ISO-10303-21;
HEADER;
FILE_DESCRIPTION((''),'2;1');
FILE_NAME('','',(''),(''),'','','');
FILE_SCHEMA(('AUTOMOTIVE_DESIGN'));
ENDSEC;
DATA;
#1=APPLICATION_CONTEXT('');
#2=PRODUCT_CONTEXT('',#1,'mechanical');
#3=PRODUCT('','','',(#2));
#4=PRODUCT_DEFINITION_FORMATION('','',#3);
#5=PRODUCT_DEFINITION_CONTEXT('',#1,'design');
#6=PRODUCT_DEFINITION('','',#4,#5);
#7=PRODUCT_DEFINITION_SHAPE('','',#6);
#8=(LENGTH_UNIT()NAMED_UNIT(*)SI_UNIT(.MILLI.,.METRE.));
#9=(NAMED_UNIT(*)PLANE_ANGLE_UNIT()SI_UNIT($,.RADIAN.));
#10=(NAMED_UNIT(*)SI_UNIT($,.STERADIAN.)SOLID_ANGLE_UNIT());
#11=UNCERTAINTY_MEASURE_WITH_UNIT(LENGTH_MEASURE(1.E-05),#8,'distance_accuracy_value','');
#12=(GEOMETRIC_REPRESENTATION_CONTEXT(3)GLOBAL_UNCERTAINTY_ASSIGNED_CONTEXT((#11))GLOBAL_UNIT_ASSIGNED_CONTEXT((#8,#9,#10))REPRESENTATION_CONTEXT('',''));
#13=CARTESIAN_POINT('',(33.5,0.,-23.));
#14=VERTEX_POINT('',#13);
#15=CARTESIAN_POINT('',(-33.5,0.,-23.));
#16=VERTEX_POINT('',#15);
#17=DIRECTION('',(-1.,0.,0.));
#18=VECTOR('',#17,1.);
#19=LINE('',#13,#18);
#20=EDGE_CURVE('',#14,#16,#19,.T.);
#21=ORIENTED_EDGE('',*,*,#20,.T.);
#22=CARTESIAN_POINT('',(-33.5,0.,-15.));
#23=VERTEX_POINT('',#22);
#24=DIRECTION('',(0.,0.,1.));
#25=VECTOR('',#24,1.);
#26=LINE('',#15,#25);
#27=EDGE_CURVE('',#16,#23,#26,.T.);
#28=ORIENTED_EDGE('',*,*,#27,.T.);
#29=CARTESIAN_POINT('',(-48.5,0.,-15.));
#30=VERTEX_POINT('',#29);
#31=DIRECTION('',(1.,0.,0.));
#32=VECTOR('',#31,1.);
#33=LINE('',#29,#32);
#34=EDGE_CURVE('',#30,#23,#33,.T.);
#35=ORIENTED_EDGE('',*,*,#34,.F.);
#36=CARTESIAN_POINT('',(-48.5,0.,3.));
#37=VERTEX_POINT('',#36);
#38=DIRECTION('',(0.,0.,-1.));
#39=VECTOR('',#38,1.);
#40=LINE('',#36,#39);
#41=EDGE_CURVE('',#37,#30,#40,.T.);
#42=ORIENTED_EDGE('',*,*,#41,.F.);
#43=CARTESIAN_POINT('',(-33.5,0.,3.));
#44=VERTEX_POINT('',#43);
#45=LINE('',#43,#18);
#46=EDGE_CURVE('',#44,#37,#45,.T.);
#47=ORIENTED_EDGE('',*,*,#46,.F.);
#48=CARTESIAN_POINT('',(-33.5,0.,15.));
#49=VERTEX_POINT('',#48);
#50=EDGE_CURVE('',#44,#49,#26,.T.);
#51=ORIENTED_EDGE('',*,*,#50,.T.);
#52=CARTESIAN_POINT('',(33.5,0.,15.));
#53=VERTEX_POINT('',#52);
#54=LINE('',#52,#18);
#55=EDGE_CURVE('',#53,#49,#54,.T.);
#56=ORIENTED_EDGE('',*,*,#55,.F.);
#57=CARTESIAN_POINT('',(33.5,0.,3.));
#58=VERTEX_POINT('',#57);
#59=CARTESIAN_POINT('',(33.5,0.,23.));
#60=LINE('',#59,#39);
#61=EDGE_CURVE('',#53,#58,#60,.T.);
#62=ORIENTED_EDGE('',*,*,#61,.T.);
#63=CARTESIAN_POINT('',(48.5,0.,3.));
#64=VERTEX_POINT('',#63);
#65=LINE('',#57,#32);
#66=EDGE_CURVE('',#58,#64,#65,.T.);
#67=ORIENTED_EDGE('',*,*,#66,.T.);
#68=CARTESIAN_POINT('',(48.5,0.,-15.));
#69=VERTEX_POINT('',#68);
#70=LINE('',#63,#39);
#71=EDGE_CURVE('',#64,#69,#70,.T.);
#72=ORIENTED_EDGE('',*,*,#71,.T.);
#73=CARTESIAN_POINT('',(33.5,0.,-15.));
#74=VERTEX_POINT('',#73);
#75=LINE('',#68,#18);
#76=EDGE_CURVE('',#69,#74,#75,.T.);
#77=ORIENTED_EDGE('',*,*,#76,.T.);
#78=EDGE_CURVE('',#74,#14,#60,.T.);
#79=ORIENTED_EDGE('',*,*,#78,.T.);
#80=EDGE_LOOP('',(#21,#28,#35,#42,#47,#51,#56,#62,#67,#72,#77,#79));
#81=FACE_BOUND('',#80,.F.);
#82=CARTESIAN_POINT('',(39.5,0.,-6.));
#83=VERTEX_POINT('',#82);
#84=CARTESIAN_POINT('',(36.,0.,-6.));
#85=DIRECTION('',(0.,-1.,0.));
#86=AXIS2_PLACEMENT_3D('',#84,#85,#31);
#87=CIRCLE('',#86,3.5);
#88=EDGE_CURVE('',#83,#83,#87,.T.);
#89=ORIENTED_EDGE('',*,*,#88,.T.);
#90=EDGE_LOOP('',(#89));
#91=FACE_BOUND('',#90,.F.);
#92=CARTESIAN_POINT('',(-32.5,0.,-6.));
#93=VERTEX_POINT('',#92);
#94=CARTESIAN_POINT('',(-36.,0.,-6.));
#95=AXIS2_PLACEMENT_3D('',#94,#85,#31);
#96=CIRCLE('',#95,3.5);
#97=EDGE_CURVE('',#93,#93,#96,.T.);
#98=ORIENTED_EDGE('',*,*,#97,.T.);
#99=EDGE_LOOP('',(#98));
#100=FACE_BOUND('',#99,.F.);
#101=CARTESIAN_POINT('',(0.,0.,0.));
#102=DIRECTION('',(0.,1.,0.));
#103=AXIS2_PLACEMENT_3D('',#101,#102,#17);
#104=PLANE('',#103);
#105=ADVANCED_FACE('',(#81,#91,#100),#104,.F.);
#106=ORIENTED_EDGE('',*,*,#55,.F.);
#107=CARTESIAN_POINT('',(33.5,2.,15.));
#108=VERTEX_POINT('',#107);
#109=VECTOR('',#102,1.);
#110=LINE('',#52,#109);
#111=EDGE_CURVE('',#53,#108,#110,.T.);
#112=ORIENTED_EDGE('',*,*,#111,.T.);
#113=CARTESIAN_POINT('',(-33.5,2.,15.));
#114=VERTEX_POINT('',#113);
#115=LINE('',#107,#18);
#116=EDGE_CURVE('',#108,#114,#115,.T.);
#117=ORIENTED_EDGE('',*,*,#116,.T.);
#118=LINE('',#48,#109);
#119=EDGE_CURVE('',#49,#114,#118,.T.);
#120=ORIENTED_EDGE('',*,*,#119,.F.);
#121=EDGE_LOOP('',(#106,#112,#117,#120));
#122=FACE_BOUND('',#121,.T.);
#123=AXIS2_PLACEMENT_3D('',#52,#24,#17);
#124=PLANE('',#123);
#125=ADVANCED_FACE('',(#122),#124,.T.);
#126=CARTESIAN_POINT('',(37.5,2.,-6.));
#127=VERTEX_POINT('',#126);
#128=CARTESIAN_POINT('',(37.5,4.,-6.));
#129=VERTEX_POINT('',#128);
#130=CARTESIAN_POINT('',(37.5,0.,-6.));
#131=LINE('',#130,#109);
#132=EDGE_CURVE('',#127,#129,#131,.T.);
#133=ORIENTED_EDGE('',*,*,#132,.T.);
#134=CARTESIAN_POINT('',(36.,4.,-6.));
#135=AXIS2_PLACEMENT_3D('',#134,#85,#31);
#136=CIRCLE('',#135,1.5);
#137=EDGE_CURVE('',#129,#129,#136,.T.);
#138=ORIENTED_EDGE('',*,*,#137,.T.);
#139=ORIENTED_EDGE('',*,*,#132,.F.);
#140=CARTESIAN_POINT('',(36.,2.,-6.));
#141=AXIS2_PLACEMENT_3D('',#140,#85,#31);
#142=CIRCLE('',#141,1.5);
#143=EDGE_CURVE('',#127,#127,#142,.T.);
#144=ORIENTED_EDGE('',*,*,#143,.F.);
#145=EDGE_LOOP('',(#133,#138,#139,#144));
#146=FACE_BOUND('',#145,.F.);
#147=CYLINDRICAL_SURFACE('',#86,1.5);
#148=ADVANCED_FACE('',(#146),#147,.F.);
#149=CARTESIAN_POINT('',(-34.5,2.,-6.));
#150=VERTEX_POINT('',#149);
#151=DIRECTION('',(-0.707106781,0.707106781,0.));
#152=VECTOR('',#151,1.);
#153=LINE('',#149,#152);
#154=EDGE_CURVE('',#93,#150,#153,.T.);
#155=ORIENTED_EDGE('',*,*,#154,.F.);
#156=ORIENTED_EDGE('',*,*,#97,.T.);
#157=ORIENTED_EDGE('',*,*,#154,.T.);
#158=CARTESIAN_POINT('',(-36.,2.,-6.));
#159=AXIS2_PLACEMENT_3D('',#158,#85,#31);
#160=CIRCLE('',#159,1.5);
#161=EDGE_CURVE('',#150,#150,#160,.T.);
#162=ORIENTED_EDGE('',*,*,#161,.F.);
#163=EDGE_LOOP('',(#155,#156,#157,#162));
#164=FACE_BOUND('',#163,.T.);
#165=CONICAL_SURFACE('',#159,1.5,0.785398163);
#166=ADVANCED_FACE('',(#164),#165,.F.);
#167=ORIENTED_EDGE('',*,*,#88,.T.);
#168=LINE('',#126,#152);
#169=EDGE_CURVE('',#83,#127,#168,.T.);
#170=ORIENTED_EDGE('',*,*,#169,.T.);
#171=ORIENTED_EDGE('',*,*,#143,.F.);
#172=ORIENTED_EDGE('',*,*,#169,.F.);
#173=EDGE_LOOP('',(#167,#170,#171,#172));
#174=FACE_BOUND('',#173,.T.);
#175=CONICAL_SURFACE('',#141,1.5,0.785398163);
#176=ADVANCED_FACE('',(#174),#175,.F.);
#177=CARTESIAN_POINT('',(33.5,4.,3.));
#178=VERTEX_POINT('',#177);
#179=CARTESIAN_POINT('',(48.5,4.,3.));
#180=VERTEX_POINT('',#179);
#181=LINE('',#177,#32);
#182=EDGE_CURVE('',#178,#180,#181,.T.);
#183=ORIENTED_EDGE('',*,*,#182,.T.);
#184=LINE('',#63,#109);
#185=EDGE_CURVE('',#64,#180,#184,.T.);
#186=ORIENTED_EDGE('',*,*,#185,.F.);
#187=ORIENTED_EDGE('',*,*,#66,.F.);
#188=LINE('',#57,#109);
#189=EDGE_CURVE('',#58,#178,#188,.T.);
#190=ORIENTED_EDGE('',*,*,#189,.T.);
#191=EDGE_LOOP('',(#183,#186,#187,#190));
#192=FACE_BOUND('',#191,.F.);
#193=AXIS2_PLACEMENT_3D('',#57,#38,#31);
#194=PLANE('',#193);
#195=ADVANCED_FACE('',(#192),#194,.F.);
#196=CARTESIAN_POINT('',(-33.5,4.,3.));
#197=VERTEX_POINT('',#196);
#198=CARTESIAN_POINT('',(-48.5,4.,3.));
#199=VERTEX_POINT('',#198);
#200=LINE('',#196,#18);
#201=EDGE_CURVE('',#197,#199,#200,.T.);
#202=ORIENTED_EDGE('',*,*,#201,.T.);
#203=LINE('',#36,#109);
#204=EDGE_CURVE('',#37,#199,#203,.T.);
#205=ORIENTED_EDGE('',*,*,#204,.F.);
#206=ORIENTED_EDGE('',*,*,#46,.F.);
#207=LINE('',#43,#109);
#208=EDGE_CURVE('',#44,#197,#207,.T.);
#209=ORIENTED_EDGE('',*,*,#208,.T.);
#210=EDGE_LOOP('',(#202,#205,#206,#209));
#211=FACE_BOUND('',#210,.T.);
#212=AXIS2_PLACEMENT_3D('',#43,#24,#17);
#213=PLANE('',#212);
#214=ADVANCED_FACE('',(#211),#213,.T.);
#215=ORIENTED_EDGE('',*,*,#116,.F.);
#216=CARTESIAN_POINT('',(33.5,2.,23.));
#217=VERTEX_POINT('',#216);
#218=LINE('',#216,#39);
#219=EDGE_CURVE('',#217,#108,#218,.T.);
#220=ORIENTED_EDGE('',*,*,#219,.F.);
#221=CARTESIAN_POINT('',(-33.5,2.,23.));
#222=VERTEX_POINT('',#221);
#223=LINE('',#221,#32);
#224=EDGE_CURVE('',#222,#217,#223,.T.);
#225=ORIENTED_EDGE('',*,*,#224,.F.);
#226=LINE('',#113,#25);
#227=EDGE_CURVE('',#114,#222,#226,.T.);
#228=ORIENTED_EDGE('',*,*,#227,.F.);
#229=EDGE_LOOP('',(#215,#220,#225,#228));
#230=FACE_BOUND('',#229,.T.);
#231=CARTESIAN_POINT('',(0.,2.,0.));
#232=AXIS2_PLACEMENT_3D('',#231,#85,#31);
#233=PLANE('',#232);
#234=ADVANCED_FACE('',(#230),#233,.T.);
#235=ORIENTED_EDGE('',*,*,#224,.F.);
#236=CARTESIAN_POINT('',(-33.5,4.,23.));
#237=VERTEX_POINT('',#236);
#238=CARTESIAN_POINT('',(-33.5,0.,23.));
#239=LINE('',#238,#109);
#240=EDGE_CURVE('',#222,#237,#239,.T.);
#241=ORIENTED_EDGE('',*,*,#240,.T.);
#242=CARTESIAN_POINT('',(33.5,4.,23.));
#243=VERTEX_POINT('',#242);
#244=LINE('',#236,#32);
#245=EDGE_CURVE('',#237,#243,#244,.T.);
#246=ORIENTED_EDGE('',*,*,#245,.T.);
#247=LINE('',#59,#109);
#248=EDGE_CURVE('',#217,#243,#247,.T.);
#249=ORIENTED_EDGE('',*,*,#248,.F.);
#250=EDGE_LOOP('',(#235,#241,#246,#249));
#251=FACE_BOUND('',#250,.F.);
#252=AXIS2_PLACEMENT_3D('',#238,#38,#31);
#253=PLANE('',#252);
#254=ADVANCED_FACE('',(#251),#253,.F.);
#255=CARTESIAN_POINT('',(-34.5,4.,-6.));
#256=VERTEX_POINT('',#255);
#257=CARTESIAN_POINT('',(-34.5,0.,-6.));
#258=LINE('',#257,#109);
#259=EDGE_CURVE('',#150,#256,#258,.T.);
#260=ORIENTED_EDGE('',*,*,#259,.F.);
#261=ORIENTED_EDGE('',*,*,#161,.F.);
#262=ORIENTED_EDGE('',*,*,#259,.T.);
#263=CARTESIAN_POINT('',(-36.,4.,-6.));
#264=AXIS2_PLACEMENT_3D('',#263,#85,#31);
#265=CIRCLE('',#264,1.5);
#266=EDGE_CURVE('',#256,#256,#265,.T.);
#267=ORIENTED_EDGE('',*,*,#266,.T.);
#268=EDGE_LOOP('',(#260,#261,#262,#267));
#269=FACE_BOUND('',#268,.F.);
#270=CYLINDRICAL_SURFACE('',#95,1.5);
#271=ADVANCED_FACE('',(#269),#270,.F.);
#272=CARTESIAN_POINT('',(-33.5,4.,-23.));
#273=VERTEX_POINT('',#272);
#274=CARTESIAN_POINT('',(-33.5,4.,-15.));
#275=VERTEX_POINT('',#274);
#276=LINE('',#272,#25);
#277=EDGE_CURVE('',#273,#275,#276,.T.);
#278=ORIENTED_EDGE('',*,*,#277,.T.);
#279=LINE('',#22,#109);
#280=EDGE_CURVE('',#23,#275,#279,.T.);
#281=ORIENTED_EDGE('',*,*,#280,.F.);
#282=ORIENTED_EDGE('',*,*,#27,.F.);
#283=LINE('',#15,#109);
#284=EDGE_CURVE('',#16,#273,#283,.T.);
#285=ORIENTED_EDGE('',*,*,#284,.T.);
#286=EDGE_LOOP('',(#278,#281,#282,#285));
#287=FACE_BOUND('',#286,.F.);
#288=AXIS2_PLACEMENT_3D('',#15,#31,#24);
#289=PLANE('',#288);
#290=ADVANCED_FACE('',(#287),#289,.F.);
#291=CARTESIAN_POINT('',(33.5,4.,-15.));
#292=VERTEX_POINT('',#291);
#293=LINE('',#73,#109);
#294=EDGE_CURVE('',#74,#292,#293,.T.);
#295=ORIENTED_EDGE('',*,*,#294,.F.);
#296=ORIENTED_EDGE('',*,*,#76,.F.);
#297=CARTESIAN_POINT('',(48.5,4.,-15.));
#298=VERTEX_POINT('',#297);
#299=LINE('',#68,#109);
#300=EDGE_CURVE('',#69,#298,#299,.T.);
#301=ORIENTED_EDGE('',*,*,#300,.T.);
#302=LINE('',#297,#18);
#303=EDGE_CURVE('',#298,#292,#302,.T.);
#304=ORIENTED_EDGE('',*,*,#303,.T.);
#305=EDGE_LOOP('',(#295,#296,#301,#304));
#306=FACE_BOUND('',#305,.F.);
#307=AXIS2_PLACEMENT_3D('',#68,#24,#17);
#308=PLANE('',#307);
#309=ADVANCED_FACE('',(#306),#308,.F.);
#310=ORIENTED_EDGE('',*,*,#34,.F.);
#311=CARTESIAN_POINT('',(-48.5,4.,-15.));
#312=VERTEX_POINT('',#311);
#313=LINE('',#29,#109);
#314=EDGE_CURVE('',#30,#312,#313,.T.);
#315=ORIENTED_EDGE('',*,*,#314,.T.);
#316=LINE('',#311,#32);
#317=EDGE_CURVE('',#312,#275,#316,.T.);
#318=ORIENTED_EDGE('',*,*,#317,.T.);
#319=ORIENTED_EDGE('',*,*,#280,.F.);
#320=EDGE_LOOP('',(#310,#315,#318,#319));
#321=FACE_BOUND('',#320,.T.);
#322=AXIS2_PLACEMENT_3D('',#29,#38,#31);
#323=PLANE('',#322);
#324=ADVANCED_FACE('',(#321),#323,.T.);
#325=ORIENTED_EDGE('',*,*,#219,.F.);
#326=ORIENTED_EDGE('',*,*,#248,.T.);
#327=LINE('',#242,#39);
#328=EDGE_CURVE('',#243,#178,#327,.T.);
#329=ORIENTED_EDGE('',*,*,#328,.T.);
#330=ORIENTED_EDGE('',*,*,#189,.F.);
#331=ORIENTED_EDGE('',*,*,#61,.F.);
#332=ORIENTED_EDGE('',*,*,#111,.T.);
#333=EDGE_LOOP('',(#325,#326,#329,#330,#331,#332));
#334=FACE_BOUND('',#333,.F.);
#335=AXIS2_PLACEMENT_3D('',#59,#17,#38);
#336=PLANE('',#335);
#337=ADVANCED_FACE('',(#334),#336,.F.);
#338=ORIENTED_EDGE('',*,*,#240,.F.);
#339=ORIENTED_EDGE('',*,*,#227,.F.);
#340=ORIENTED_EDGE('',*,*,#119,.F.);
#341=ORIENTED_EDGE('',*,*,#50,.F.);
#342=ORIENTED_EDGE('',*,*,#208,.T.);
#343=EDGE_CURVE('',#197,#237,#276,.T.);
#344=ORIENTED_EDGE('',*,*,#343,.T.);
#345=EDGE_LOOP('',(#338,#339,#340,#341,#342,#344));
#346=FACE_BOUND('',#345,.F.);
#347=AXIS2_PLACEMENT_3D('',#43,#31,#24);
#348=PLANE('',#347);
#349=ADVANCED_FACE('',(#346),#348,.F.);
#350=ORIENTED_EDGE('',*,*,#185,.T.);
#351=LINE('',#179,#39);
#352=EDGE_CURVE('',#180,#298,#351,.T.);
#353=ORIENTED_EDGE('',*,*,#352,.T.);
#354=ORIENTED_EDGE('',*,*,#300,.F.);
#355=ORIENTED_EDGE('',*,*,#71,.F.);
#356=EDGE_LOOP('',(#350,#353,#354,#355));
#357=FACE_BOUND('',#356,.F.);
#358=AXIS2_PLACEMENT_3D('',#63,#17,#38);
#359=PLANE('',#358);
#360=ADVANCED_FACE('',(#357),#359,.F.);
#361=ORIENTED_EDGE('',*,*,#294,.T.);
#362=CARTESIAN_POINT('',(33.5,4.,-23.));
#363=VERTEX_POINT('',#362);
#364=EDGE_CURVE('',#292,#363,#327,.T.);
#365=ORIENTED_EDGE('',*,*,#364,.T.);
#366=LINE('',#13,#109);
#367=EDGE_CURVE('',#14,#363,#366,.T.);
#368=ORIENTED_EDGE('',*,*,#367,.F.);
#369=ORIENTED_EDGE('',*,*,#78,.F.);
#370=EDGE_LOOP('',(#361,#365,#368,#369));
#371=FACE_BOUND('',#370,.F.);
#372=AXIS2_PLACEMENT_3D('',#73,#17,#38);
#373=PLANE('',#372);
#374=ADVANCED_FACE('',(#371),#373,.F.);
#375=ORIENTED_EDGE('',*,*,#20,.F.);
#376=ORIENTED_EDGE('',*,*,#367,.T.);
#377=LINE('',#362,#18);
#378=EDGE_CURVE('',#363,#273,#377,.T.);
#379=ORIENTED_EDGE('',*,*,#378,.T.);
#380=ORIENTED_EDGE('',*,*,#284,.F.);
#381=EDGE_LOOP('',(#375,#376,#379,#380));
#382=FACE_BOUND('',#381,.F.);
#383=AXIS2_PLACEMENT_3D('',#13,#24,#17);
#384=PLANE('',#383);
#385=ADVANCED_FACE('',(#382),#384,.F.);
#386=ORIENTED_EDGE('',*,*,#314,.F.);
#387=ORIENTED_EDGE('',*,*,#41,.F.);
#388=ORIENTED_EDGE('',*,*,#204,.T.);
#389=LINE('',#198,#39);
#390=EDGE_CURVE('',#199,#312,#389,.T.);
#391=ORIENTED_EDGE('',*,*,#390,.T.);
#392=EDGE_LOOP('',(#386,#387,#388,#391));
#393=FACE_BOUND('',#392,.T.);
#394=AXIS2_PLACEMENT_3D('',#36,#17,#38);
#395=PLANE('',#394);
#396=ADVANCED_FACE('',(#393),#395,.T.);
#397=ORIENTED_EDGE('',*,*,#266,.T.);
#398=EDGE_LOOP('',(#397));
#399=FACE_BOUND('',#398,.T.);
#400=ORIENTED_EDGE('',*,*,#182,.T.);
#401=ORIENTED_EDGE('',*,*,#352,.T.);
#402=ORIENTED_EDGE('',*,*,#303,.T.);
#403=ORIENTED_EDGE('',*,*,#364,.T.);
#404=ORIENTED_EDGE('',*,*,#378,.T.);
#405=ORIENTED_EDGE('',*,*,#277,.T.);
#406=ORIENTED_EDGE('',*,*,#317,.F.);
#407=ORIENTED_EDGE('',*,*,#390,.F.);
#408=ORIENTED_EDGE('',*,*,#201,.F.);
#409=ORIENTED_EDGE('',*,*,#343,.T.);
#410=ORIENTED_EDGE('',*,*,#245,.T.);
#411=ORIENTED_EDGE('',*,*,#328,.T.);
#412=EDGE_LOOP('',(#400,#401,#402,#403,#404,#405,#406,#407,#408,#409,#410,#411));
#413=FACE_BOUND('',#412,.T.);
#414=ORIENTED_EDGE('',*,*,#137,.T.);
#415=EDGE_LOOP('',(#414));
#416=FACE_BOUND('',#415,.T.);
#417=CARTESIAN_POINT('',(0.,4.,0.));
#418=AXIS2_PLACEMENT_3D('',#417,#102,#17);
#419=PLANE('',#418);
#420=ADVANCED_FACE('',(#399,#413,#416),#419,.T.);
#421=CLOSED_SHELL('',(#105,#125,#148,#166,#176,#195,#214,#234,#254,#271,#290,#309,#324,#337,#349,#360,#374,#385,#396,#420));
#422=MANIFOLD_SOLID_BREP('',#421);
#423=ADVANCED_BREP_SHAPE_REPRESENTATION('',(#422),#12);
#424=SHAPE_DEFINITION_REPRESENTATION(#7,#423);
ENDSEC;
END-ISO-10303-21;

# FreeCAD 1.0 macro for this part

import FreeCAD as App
import Part
import Sketcher

V = App.Vector


def edges_at(feature, points):
    """Names of the edges that pass closest to the given points."""
    edges = feature.Shape.Edges
    near = lambda p: min(range(len(edges)), key=lambda i: edges[i].distToShape(Part.Vertex(*p))[0])
    return sorted({f"Edge{near(p) + 1}" for p in points})


def add_polygon(sketch, points):
    """Adds a closed chain of lines whose ends are joined by coincident constraints."""
    first, n = sketch.GeometryCount, len(points)
    for a, b in zip(points, points[1:] + points[:1]):
        sketch.addGeometry(Part.LineSegment(App.Vector(*a, 0), App.Vector(*b, 0)), False)
    for i in range(n):
        sketch.addConstraint(Sketcher.Constraint("Coincident", first + i, 2, first + (i + 1) % n, 1))

doc = App.newDocument("Part")
body = doc.addObject("PartDesign::Body", "Body")

sketch1 = doc.addObject("Sketcher::SketchObject", "Sketch")
body.addObject(sketch1)
sketch1.AttachmentSupport = (doc.XZ_Plane, [""])
sketch1.MapMode = "FlatFace"
add_polygon(sketch1, [(34, -15), (34, -23), (-34, -23), (-34, -15), (-48, -15), (-48, 3), (-34, 3), (-34, 23), (34, 23), (34, 3), (48, 3), (48, -15)])
sketch1.addConstraint([
    Sketcher.Constraint("Vertical", 0),
    Sketcher.Constraint("Horizontal", 1),
    Sketcher.Constraint("Vertical", 2),
    Sketcher.Constraint("Horizontal", 3),
    Sketcher.Constraint("Vertical", 4),
    Sketcher.Constraint("Horizontal", 5),
    Sketcher.Constraint("Vertical", 6),
    Sketcher.Constraint("Horizontal", 7),
    Sketcher.Constraint("Vertical", 8),
    Sketcher.Constraint("Horizontal", 9),
    Sketcher.Constraint("Vertical", 10),
    Sketcher.Constraint("Horizontal", 11),
    Sketcher.Constraint("Symmetric", 0, 2, 6, 2, -1, 1),
    Sketcher.Constraint("Symmetric", 5, 2, 8, 2, -2),
    Sketcher.Constraint("Symmetric", 3, 2, 10, 2, -2),
    Sketcher.Constraint("Vertical", 2, 2, 5, 2),
    Sketcher.Constraint("DistanceX", 1, 2, 1, 1, 67.0),
    Sketcher.Constraint("DistanceY", 0, 2, 0, 1, 8.0),
    Sketcher.Constraint("DistanceY", 4, 1, 4, 2, 18.0),
    Sketcher.Constraint("DistanceY", 1, 2, 6, 2, 46.0),
    Sketcher.Constraint("DistanceX", 3, 2, 3, 1, 15.0),
])
pad1 = doc.addObject("PartDesign::Pad", "Pad")
body.addObject(pad1)
pad1.Profile = sketch1
pad1.Length = 4
pad1.Reversed = True

sketch2 = doc.addObject("Sketcher::SketchObject", "Sketch001")
body.addObject(sketch2)
sketch2.AttachmentSupport = (doc.XZ_Plane, [""])
sketch2.MapMode = "FlatFace"
add_polygon(sketch2, [(34, 23), (-34, 23), (-34, 15), (34, 15)])
sketch2.addConstraint([
    Sketcher.Constraint("Horizontal", 0),
    Sketcher.Constraint("Vertical", 1),
    Sketcher.Constraint("Horizontal", 2),
    Sketcher.Constraint("Vertical", 3),
    Sketcher.Constraint("DistanceY", 1, 2, 1, 1, 8.0),
    Sketcher.Constraint("DistanceX", 0, 2, 0, 1, 67.0),
    Sketcher.Constraint("DistanceY", -1, 1, 0, 2, 23.0),
    Sketcher.Constraint("DistanceX", 0, 2, -1, 1, 33.5),
])
pocket1 = doc.addObject("PartDesign::Pocket", "Pocket")
body.addObject(pocket1)
pocket1.Profile = sketch2
pocket1.Length = 2

sketch3 = doc.addObject("Sketcher::SketchObject", "Sketch002")
body.addObject(sketch3)
sketch3.AttachmentSupport = (doc.XZ_Plane, [""])
sketch3.MapMode = "FlatFace"
sketch3.addGeometry([
    Part.Circle(V(-36, -6, 0), V(0, 0, 1), 1.5),
    Part.Circle(V(36, -6, 0), V(0, 0, 1), 1.5),
], False)
sketch3.addConstraint([
    Sketcher.Constraint("Equal", 0, 1),
    Sketcher.Constraint("Symmetric", 0, 3, 1, 3, -2),
    Sketcher.Constraint("Diameter", 0, 3.0),
    Sketcher.Constraint("DistanceX", 0, 3, -1, 1, 36.0),
    Sketcher.Constraint("DistanceY", 0, 3, -1, 1, 6.0),
])
pocket2 = doc.addObject("PartDesign::Pocket", "Pocket001")
body.addObject(pocket2)
pocket2.Profile = sketch3
pocket2.Type = "ThroughAll"
doc.recompute()

chamfer = doc.addObject("PartDesign::Chamfer", "Chamfer")
body.addObject(chamfer)
chamfer.Base = (pocket2, edges_at(pocket2, [(34.5, 0, -6), (-37.5, 0, -6)]))
chamfer.Size = 2

doc.recompute()
